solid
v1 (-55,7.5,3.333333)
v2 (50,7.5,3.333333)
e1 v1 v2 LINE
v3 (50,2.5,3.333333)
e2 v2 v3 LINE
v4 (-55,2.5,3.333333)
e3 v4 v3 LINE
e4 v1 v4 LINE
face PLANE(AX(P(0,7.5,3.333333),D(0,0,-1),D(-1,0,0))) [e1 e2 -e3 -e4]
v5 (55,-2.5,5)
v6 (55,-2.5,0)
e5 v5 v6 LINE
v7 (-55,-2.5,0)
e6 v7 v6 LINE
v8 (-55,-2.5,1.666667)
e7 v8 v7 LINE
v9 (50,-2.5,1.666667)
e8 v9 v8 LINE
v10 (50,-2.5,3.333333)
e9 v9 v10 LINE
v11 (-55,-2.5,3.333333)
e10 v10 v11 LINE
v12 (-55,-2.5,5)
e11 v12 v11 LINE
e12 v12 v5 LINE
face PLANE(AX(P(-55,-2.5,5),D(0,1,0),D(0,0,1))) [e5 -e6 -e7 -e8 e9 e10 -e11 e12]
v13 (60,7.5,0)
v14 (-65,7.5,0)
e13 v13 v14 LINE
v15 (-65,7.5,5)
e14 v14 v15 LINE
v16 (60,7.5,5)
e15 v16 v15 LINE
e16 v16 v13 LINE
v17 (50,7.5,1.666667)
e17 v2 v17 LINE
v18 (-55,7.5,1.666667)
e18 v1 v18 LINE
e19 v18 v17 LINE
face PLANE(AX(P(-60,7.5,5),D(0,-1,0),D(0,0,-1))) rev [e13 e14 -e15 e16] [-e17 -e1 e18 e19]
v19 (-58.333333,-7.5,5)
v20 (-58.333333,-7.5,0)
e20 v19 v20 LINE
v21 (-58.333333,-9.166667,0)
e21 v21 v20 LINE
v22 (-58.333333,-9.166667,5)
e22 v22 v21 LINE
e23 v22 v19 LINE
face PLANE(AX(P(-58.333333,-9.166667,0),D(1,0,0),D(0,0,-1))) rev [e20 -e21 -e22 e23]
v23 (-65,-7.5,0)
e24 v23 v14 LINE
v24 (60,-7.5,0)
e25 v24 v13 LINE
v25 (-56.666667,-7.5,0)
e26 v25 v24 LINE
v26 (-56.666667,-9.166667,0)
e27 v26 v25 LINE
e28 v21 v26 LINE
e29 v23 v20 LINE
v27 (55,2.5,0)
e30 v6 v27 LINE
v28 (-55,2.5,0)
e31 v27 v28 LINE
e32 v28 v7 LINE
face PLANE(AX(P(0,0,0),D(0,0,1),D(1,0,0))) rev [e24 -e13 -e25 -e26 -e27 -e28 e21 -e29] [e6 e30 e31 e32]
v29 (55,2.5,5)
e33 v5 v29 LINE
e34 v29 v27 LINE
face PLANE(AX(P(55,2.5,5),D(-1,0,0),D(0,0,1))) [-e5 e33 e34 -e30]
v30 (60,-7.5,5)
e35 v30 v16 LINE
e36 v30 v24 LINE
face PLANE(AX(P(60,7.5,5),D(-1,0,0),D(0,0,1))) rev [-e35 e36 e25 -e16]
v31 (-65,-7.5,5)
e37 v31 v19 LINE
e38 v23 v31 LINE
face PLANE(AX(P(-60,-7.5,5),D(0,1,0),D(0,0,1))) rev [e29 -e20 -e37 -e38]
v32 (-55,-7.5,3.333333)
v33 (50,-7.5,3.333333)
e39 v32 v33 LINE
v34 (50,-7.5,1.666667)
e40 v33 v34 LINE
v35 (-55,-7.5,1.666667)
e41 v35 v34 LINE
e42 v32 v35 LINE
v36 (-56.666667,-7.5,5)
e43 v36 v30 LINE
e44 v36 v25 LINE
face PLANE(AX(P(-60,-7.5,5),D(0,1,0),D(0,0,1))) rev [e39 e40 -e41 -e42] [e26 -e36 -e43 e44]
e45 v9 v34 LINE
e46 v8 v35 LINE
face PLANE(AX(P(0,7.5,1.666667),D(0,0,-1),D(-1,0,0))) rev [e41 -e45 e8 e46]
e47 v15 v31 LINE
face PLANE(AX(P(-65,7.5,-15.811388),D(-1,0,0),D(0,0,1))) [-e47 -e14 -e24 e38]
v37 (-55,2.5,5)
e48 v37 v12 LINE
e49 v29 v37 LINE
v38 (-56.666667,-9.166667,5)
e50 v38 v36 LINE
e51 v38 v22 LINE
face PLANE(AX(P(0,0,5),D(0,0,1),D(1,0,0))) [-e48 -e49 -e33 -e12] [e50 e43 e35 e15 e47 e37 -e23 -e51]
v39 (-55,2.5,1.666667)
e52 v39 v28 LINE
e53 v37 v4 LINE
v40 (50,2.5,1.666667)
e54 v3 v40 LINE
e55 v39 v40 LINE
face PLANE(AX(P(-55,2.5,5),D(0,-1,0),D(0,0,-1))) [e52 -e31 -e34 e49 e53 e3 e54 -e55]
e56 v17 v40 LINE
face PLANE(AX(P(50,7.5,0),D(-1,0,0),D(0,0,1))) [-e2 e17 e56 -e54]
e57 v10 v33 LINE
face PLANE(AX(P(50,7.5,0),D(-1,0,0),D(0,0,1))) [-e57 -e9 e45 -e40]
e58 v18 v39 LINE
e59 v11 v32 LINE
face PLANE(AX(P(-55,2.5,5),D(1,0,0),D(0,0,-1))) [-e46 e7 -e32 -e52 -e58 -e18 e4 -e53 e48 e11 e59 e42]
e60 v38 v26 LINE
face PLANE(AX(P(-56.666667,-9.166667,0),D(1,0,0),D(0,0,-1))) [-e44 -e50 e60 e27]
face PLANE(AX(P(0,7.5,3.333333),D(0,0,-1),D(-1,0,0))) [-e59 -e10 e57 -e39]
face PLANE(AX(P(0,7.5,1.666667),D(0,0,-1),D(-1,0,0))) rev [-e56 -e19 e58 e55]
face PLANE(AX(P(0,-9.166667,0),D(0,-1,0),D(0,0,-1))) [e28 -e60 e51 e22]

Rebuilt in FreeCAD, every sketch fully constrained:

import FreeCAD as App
import Part
import Sketcher
from FreeCAD import Vector

doc = App.newDocument("Part")
body = doc.addObject("PartDesign::Body", "Body")

# Sketch on XY plane
sketch1 = doc.addObject("Sketcher::SketchObject", "Sketch")
body.addObject(sketch1)
sketch1.AttachmentSupport = (doc.XY_Plane, [""])
sketch1.MapMode = "FlatFace"
sketch1.addGeometry([
    Part.LineSegment(Vector(-60, 8, 0), Vector(-60, -8, 0)),  # 0
    Part.LineSegment(Vector(-60, -8, 0), Vector(60, -8, 0)),  # 1
    Part.LineSegment(Vector(60, -8, 0), Vector(60, 8, 0)),  # 2
    Part.LineSegment(Vector(60, 8, 0), Vector(-60, 8, 0)),  # 3
    Part.LineSegment(Vector(55, -2, 0), Vector(-55, -2, 0)),  # 4
    Part.LineSegment(Vector(-55, -2, 0), Vector(-55, 2, 0)),  # 5
    Part.LineSegment(Vector(-55, 2, 0), Vector(55, 2, 0)),  # 6
    Part.LineSegment(Vector(55, 2, 0), Vector(55, -2, 0)),  # 7
], False)
sketch1.addConstraint([
    Sketcher.Constraint("Coincident", 0, 2, 1, 1),
    Sketcher.Constraint("Coincident", 1, 2, 2, 1),
    Sketcher.Constraint("Coincident", 2, 2, 3, 1),
    Sketcher.Constraint("Coincident", 3, 2, 0, 1),
    Sketcher.Constraint("Coincident", 4, 2, 5, 1),
    Sketcher.Constraint("Coincident", 5, 2, 6, 1),
    Sketcher.Constraint("Coincident", 6, 2, 7, 1),
    Sketcher.Constraint("Coincident", 7, 2, 4, 1),
    Sketcher.Constraint("Vertical", 0),
    Sketcher.Constraint("Horizontal", 1),
    Sketcher.Constraint("Vertical", 2),
    Sketcher.Constraint("Horizontal", 3),
    Sketcher.Constraint("Horizontal", 4),
    Sketcher.Constraint("Vertical", 5),
    Sketcher.Constraint("Horizontal", 6),
    Sketcher.Constraint("Vertical", 7),
    Sketcher.Constraint("Symmetric", 0, 2, 2, 2, -1, 1),
    Sketcher.Constraint("Symmetric", 4, 2, 6, 2, -1, 1),
    Sketcher.Constraint("DistanceX", 1, 1, 1, 2, 120.0),
    Sketcher.Constraint("DistanceX", 4, 2, 4, 1, 110.0),
    Sketcher.Constraint("DistanceY", 0, 2, 0, 1, 15.0),
    Sketcher.Constraint("DistanceY", 5, 1, 5, 2, 5.0),
])
pad1 = doc.addObject("PartDesign::Pad", "Pad")
body.addObject(pad1)
pad1.Profile = sketch1
pad1.Length = 5

# Sketch on XZ plane
sketch2 = doc.addObject("Sketcher::SketchObject", "Sketch001")
body.addObject(sketch2)
sketch2.AttachmentSupport = (doc.XZ_Plane, [""])
sketch2.MapMode = "FlatFace"
sketch2.AttachmentOffset = App.Placement(Vector(0, 0, 7.5), App.Rotation())
sketch2.addGeometry([
    Part.LineSegment(Vector(-58.3, 5, 0), Vector(-58.3, 0, 0)),
    Part.LineSegment(Vector(-58.3, 0, 0), Vector(-56.7, 0, 0)),
    Part.LineSegment(Vector(-56.7, 0, 0), Vector(-56.7, 5, 0)),
    Part.LineSegment(Vector(-56.7, 5, 0), Vector(-58.3, 5, 0)),
], False)
sketch2.addConstraint([
    Sketcher.Constraint("Coincident", 0, 2, 1, 1),
    Sketcher.Constraint("Coincident", 1, 2, 2, 1),
    Sketcher.Constraint("Coincident", 2, 2, 3, 1),
    Sketcher.Constraint("Coincident", 3, 2, 0, 1),
    Sketcher.Constraint("Vertical", 0),
    Sketcher.Constraint("Horizontal", 1),
    Sketcher.Constraint("Vertical", 2),
    Sketcher.Constraint("Horizontal", 3),
    Sketcher.Constraint("PointOnObject", 0, 2, -1),
    Sketcher.Constraint("DistanceY", 0, 2, 0, 1, 5.0),
    Sketcher.Constraint("DistanceX", 1, 1, 1, 2, 1.666667),
    Sketcher.Constraint("DistanceX", 0, 2, -1, 1, 58.333333),
])
pad2 = doc.addObject("PartDesign::Pad", "Pad001")
body.addObject(pad2)
pad2.Profile = sketch2
pad2.Length = 1.666667

# Sketch on XY plane
sketch3 = doc.addObject("Sketcher::SketchObject", "Sketch002")
body.addObject(sketch3)
sketch3.AttachmentSupport = (doc.XY_Plane, [""])
sketch3.MapMode = "FlatFace"
sketch3.AttachmentOffset = App.Placement(Vector(0, 0, 5), App.Rotation())
sketch3.addGeometry([
    Part.LineSegment(Vector(-65, 8, 0), Vector(-65, -8, 0)),
    Part.LineSegment(Vector(-65, -8, 0), Vector(-60, -8, 0)),
    Part.LineSegment(Vector(-60, -8, 0), Vector(-60, 8, 0)),
    Part.LineSegment(Vector(-60, 8, 0), Vector(-65, 8, 0)),
], False)
sketch3.addConstraint([
    Sketcher.Constraint("Coincident", 0, 2, 1, 1),
    Sketcher.Constraint("Coincident", 1, 2, 2, 1),
    Sketcher.Constraint("Coincident", 2, 2, 3, 1),
    Sketcher.Constraint("Coincident", 3, 2, 0, 1),
    Sketcher.Constraint("Vertical", 0),
    Sketcher.Constraint("Horizontal", 1),
    Sketcher.Constraint("Vertical", 2),
    Sketcher.Constraint("Horizontal", 3),
    Sketcher.Constraint("DistanceX", 1, 1, 1, 2, 5.0),
    Sketcher.Constraint("DistanceY", 0, 2, 0, 1, 15.0),
    Sketcher.Constraint("DistanceX", 0, 2, -1, 1, 65.0),
    Sketcher.Constraint("DistanceY", 0, 2, -1, 1, 7.5),
])
pad3 = doc.addObject("PartDesign::Pad", "Pad002")
body.addObject(pad3)
pad3.Profile = sketch3
pad3.Length = 5
pad3.Reversed = True

# Sketch on XZ plane
sketch4 = doc.addObject("Sketcher::SketchObject", "Sketch003")
body.addObject(sketch4)
sketch4.AttachmentSupport = (doc.XZ_Plane, [""])
sketch4.MapMode = "FlatFace"
sketch4.AttachmentOffset = App.Placement(Vector(0, 0, 7.5), App.Rotation())
sketch4.addGeometry([
    Part.LineSegment(Vector(-55, 3.3, 0), Vector(-55, 1.7, 0)),
    Part.LineSegment(Vector(-55, 1.7, 0), Vector(50, 1.7, 0)),
    Part.LineSegment(Vector(50, 1.7, 0), Vector(50, 3.3, 0)),
    Part.LineSegment(Vector(50, 3.3, 0), Vector(-55, 3.3, 0)),
], False)
sketch4.addConstraint([
    Sketcher.Constraint("Coincident", 0, 2, 1, 1),
    Sketcher.Constraint("Coincident", 1, 2, 2, 1),
    Sketcher.Constraint("Coincident", 2, 2, 3, 1),
    Sketcher.Constraint("Coincident", 3, 2, 0, 1),
    Sketcher.Constraint("Vertical", 0),
    Sketcher.Constraint("Horizontal", 1),
    Sketcher.Constraint("Vertical", 2),
    Sketcher.Constraint("Horizontal", 3),
    Sketcher.Constraint("DistanceX", 1, 1, 1, 2, 105.0),
    Sketcher.Constraint("DistanceX", 0, 2, -1, 1, 55.0),
    Sketcher.Constraint("DistanceY", 0, 2, 0, 1, 1.666667),
    Sketcher.Constraint("DistanceY", -1, 1, 0, 2, 1.666667),
])
pocket1 = doc.addObject("PartDesign::Pocket", "Pocket")
body.addObject(pocket1)
pocket1.Profile = sketch4
pocket1.Type = "ThroughAll"

doc.recompute()
